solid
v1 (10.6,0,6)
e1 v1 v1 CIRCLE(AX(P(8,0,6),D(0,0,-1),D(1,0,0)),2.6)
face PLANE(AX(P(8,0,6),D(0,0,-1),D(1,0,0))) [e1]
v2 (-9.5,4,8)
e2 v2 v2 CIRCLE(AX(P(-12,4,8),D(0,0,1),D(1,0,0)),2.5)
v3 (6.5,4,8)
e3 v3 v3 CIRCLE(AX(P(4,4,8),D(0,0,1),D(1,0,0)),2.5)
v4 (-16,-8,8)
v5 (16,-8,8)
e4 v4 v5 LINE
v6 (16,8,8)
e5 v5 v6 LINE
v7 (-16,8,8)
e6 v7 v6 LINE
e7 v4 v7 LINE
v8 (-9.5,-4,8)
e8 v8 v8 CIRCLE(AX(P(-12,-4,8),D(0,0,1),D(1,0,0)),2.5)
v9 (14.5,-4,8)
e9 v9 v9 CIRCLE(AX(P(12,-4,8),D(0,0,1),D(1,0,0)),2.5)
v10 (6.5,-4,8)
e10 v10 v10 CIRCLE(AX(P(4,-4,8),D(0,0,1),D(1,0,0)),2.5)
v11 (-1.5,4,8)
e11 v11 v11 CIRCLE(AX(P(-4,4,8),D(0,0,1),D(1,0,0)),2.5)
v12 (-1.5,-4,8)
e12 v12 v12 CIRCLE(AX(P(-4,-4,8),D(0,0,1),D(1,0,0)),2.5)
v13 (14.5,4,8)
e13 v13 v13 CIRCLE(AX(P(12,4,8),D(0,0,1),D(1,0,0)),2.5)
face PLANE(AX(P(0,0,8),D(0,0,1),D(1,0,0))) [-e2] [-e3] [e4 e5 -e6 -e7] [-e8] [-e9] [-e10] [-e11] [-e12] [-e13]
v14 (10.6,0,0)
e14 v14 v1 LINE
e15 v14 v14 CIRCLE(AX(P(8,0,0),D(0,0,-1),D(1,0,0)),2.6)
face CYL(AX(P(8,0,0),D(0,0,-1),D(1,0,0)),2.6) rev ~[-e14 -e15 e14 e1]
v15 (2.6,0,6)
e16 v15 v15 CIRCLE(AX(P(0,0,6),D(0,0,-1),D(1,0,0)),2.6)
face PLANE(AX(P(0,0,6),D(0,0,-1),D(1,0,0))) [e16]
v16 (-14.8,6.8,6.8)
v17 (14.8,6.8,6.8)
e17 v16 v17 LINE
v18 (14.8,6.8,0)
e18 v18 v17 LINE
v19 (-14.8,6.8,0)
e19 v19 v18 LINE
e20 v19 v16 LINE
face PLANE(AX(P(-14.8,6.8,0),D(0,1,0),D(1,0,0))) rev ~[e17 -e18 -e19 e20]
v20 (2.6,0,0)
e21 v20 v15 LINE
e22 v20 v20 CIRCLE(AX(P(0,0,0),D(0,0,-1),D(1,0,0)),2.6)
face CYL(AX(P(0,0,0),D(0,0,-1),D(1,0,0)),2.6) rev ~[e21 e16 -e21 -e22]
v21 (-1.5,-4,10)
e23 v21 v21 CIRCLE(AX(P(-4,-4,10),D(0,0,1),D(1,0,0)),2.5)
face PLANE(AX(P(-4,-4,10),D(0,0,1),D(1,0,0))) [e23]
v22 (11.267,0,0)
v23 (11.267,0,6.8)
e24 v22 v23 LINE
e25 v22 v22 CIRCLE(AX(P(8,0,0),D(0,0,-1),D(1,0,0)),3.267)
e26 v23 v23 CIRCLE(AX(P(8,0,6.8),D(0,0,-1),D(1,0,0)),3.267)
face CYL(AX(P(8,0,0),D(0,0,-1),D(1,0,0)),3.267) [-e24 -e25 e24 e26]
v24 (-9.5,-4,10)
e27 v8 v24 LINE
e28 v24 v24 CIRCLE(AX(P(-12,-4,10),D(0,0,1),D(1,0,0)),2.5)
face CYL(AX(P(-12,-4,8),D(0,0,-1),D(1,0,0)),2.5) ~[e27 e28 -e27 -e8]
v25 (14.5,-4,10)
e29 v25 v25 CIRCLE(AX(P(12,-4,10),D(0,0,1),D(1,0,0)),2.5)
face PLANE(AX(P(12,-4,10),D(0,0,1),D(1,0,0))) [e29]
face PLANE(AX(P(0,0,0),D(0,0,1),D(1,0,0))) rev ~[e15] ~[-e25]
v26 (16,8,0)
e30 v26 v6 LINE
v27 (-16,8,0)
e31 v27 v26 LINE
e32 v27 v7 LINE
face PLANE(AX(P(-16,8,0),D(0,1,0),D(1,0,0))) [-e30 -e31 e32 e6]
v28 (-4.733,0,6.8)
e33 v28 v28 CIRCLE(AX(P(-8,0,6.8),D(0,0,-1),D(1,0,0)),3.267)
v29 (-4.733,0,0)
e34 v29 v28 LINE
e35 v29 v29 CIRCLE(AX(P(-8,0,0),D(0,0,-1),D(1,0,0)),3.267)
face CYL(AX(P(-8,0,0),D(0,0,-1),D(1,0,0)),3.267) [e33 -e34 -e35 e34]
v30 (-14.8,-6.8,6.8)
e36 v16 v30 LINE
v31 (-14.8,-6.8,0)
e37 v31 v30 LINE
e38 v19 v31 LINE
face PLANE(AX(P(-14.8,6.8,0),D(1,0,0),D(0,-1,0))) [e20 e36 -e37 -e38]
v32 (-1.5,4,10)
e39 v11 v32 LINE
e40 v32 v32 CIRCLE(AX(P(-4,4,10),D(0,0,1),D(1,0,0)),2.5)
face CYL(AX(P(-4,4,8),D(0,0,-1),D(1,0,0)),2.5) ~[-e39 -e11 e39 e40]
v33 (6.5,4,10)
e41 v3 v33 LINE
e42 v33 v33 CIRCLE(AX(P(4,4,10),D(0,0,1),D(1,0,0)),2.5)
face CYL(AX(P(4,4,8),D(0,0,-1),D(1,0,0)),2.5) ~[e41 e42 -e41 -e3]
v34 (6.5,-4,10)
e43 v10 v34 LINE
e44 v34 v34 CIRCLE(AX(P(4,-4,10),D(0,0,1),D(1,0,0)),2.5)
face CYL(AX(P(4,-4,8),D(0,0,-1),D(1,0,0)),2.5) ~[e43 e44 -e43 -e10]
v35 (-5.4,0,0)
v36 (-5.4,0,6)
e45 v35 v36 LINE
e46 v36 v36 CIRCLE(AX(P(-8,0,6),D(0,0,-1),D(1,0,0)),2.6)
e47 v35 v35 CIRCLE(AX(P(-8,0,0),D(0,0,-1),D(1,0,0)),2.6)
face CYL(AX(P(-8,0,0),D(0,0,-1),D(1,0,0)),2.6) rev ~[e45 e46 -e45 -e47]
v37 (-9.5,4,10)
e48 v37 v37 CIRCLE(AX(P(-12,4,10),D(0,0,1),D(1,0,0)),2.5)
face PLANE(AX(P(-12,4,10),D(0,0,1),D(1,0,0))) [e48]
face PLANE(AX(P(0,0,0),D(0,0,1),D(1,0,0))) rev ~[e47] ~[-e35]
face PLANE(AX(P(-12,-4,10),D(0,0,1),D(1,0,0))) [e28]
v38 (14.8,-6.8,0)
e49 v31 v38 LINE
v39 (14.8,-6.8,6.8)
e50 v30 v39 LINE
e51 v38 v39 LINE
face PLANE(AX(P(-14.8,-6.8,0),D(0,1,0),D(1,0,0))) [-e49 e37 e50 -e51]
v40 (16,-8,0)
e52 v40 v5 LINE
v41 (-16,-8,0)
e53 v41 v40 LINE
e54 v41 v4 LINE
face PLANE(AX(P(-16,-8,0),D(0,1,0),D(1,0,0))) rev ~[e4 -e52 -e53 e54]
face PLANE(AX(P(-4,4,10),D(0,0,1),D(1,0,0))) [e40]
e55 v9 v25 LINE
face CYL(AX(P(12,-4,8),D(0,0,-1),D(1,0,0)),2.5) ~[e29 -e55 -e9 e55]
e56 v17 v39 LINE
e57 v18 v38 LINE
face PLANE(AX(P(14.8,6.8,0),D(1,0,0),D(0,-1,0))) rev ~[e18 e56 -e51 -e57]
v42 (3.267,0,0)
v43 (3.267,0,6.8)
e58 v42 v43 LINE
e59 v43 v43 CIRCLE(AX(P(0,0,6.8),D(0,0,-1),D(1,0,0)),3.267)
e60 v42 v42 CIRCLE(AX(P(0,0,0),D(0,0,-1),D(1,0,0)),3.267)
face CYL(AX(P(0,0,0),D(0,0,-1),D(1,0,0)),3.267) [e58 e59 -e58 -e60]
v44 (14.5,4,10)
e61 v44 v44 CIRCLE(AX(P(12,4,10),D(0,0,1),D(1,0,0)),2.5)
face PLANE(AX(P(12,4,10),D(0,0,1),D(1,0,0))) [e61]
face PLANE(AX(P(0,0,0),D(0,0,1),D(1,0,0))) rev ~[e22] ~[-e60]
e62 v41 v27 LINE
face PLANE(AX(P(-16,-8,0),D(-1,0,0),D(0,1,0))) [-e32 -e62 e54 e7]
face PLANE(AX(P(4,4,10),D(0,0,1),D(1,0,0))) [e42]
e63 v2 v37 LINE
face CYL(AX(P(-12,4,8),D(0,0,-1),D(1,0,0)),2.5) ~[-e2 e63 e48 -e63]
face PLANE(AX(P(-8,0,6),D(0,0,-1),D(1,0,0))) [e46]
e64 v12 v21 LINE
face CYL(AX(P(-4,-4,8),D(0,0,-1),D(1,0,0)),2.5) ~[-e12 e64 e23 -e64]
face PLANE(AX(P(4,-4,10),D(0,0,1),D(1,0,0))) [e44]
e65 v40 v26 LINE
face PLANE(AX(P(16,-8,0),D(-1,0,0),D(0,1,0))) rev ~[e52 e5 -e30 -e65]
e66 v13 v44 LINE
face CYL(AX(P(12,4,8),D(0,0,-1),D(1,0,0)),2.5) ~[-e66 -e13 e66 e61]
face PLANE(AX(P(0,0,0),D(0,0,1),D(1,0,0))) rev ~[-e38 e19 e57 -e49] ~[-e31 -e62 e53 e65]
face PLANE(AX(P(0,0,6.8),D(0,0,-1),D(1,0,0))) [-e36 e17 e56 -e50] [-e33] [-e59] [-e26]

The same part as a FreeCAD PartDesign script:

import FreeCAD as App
import Part
import Sketcher
from FreeCAD import Vector
Q = App.Units.Quantity

doc = App.newDocument("Part")
body = doc.addObject("PartDesign::Body", "Body")

sketch1 = body.newObject("Sketcher::SketchObject", "Sketch")
sketch1.AttachmentSupport = (doc.getObject("XY_Plane"), [""])
sketch1.MapMode = "FlatFace"
sketch1.addGeometry(Part.LineSegment(Vector(-16, 8, 0), Vector(-16, -8, 0)), False)
sketch1.addGeometry(Part.LineSegment(Vector(-16, -8, 0), Vector(16, -8, 0)), False)
sketch1.addGeometry(Part.LineSegment(Vector(16, -8, 0), Vector(16, 8, 0)), False)
sketch1.addGeometry(Part.LineSegment(Vector(16, 8, 0), Vector(-16, 8, 0)), False)
sketch1.addConstraint(Sketcher.Constraint("Coincident", 0, 2, 1, 1))
sketch1.addConstraint(Sketcher.Constraint("Coincident", 1, 2, 2, 1))
sketch1.addConstraint(Sketcher.Constraint("Coincident", 2, 2, 3, 1))
sketch1.addConstraint(Sketcher.Constraint("Coincident", 3, 2, 0, 1))
sketch1.addConstraint(Sketcher.Constraint("Vertical", 0))
sketch1.addConstraint(Sketcher.Constraint("Horizontal", 1))
sketch1.addConstraint(Sketcher.Constraint("Vertical", 2))
sketch1.addConstraint(Sketcher.Constraint("Horizontal", 3))
sketch1.addConstraint(Sketcher.Constraint("Symmetric", 0, 2, 2, 2, -1, 1))
sketch1.addConstraint(Sketcher.Constraint("DistanceX", 1, 1, 1, 2, Q("32 mm")))
sketch1.addConstraint(Sketcher.Constraint("DistanceY", 0, 2, 0, 1, Q("16 mm")))
pad1 = body.newObject("PartDesign::Pad", "Pad")
pad1.Profile = sketch1
pad1.Length = 8

sketch2 = body.newObject("Sketcher::SketchObject", "Sketch001")
sketch2.AttachmentSupport = (doc.getObject("XY_Plane"), [""])
sketch2.MapMode = "FlatFace"
sketch2.AttachmentOffset = App.Placement(Vector(0, 0, 8), App.Rotation())
sketch2.addGeometry(Part.Circle(Vector(-12, 4, 0), Vector(0, 0, 1), 2.5), False)
sketch2.addGeometry(Part.Circle(Vector(-4, 4, 0), Vector(0, 0, 1), 2.5), False)
sketch2.addGeometry(Part.Circle(Vector(4, 4, 0), Vector(0, 0, 1), 2.5), False)
sketch2.addGeometry(Part.Circle(Vector(12, 4, 0), Vector(0, 0, 1), 2.5), False)
sketch2.addGeometry(Part.Circle(Vector(12, -4, 0), Vector(0, 0, 1), 2.5), False)
sketch2.addGeometry(Part.Circle(Vector(4, -4, 0), Vector(0, 0, 1), 2.5), False)
sketch2.addGeometry(Part.Circle(Vector(-4, -4, 0), Vector(0, 0, 1), 2.5), False)
sketch2.addGeometry(Part.Circle(Vector(-12, -4, 0), Vector(0, 0, 1), 2.5), False)
sketch2.addConstraint(Sketcher.Constraint("Equal", 0, 1))
sketch2.addConstraint(Sketcher.Constraint("Equal", 1, 2))
sketch2.addConstraint(Sketcher.Constraint("Equal", 2, 3))
sketch2.addConstraint(Sketcher.Constraint("Equal", 3, 4))
sketch2.addConstraint(Sketcher.Constraint("Equal", 4, 5))
sketch2.addConstraint(Sketcher.Constraint("Equal", 5, 6))
sketch2.addConstraint(Sketcher.Constraint("Equal", 6, 7))
sketch2.addConstraint(Sketcher.Constraint("Symmetric", 0, 3, 4, 3, -1, 1))
sketch2.addConstraint(Sketcher.Constraint("Symmetric", 1, 3, 5, 3, -1, 1))
sketch2.addConstraint(Sketcher.Constraint("Symmetric", 2, 3, 6, 3, -1, 1))
sketch2.addConstraint(Sketcher.Constraint("Symmetric", 3, 3, 7, 3, -1, 1))
sketch2.addConstraint(Sketcher.Constraint("Symmetric", 1, 3, 2, 3, -2))
sketch2.addConstraint(Sketcher.Constraint("Symmetric", 0, 3, 3, 3, -2))
sketch2.addConstraint(Sketcher.Constraint("Horizontal", 0, 3, 1, 3))
sketch2.addConstraint(Sketcher.Constraint("Diameter", 0, Q("5 mm")))
sketch2.addConstraint(Sketcher.Constraint("DistanceX", 0, 3, -1, 1, Q("12 mm")))
sketch2.addConstraint(Sketcher.Constraint("DistanceY", -1, 1, 0, 3, Q("4 mm")))
sketch2.addConstraint(Sketcher.Constraint("DistanceX", 1, 3, -1, 1, Q("4 mm")))
pad2 = body.newObject("PartDesign::Pad", "Pad001")
pad2.Profile = sketch2
pad2.Length = 2

sketch3 = body.newObject("Sketcher::SketchObject", "Sketch002")
sketch3.AttachmentSupport = (doc.getObject("XY_Plane"), [""])
sketch3.MapMode = "FlatFace"
sketch3.addGeometry(Part.LineSegment(Vector(-14.8, -6.8, 0), Vector(-14.8, 6.8, 0)), False)
sketch3.addGeometry(Part.LineSegment(Vector(-14.8, 6.8, 0), Vector(14.8, 6.8, 0)), False)
sketch3.addGeometry(Part.LineSegment(Vector(14.8, 6.8, 0), Vector(14.8, -6.8, 0)), False)
sketch3.addGeometry(Part.LineSegment(Vector(14.8, -6.8, 0), Vector(-14.8, -6.8, 0)), False)
sketch3.addGeometry(Part.Circle(Vector(-8, 0, 0), Vector(0, 0, 1), 3.3), False)
sketch3.addGeometry(Part.Circle(Vector(0, 0, 0), Vector(0, 0, 1), 3.3), False)
sketch3.addGeometry(Part.Circle(Vector(8, 0, 0), Vector(0, 0, 1), 3.3), False)
sketch3.addConstraint(Sketcher.Constraint("Coincident", 0, 2, 1, 1))
sketch3.addConstraint(Sketcher.Constraint("Coincident", 1, 2, 2, 1))
sketch3.addConstraint(Sketcher.Constraint("Coincident", 2, 2, 3, 1))
sketch3.addConstraint(Sketcher.Constraint("Coincident", 3, 2, 0, 1))
sketch3.addConstraint(Sketcher.Constraint("Vertical", 0))
sketch3.addConstraint(Sketcher.Constraint("Horizontal", 1))
sketch3.addConstraint(Sketcher.Constraint("Vertical", 2))
sketch3.addConstraint(Sketcher.Constraint("Horizontal", 3))
sketch3.addConstraint(Sketcher.Constraint("Coincident", 5, 3, -1, 1))
sketch3.addConstraint(Sketcher.Constraint("Equal", 4, 5))
sketch3.addConstraint(Sketcher.Constraint("Equal", 5, 6))
sketch3.addConstraint(Sketcher.Constraint("Symmetric", 4, 3, 6, 3, -1, 1))
sketch3.addConstraint(Sketcher.Constraint("Symmetric", 0, 2, 2, 2, -1, 1))
sketch3.addConstraint(Sketcher.Constraint("PointOnObject", 4, 3, -1))
sketch3.addConstraint(Sketcher.Constraint("Diameter", 4, Q("6.534 mm")))
sketch3.addConstraint(Sketcher.Constraint("DistanceX", 1, 1, 1, 2, Q("29.6 mm")))
sketch3.addConstraint(Sketcher.Constraint("DistanceY", 0, 1, 0, 2, Q("13.6 mm")))
sketch3.addConstraint(Sketcher.Constraint("DistanceX", 4, 3, -1, 1, Q("8 mm")))
pocket1 = body.newObject("PartDesign::Pocket", "Pocket")
pocket1.Profile = sketch3
pocket1.Length = 6.8
pocket1.Reversed = True

sketch4 = body.newObject("Sketcher::SketchObject", "Sketch003")
sketch4.AttachmentSupport = (doc.getObject("XY_Plane"), [""])
sketch4.MapMode = "FlatFace"
sketch4.addGeometry(Part.Circle(Vector(0, 0, 0), Vector(0, 0, 1), 2.6), False)
sketch4.addGeometry(Part.Circle(Vector(8, 0, 0), Vector(0, 0, 1), 2.6), False)
sketch4.addConstraint(Sketcher.Constraint("Coincident", 0, 3, -1, 1))
sketch4.addConstraint(Sketcher.Constraint("Equal", 0, 1))
sketch4.addConstraint(Sketcher.Constraint("PointOnObject", 1, 3, -1))
sketch4.addConstraint(Sketcher.Constraint("Diameter", 0, Q("5.2 mm")))
sketch4.addConstraint(Sketcher.Constraint("DistanceX", -1, 1, 1, 3, Q("8 mm")))
pocket2 = body.newObject("PartDesign::Pocket", "Pocket001")
pocket2.Profile = sketch4
pocket2.Length = 6
pocket2.Reversed = True

sketch5 = body.newObject("Sketcher::SketchObject", "Sketch004")
sketch5.AttachmentSupport = (doc.getObject("XY_Plane"), [""])
sketch5.MapMode = "FlatFace"
sketch5.addGeometry(Part.Circle(Vector(-8, 0, 0), Vector(0, 0, 1), 2.6), False)
sketch5.addConstraint(Sketcher.Constraint("PointOnObject", 0, 3, -1))
sketch5.addConstraint(Sketcher.Constraint("Diameter", 0, Q("5.2 mm")))
sketch5.addConstraint(Sketcher.Constraint("DistanceX", 0, 3, -1, 1, Q("8 mm")))
pocket3 = body.newObject("PartDesign::Pocket", "Pocket002")
pocket3.Profile = sketch5
pocket3.Length = 6
pocket3.Reversed = True

doc.recompute()
